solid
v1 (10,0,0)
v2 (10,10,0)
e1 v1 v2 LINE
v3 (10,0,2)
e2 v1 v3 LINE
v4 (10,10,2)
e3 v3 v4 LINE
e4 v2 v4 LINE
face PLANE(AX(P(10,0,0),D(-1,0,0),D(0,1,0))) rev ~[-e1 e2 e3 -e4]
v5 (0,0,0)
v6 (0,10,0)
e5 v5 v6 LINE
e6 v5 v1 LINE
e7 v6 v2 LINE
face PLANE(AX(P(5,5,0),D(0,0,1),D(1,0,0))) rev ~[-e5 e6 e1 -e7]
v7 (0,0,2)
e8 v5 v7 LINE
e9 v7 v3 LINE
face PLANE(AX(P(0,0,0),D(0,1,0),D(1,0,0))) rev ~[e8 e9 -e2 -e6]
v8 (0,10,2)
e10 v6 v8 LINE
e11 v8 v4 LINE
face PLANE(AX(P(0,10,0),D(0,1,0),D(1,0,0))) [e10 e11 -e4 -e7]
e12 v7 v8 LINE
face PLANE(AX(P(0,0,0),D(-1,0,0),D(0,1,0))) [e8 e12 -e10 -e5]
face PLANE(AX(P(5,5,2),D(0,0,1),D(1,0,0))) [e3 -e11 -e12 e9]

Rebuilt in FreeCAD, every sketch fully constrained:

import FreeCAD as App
import Part
import Sketcher

V = App.Vector
Q = App.Units.Quantity

doc = App.newDocument("Part")
body = doc.addObject("PartDesign::Body", "Body")

sketch1 = body.newObject("Sketcher::SketchObject", "Sketch")
sketch1.AttachmentSupport = (doc.getObject("XY_Plane"), [""])
sketch1.MapMode = "FlatFace"
sketch1.addGeometry(Part.LineSegment(V(0, 10, 0), V(0, 0, 0)), False)
sketch1.addGeometry(Part.LineSegment(V(0, 0, 0), V(10, 0, 0)), False)
sketch1.addGeometry(Part.LineSegment(V(10, 0, 0), V(10, 10, 0)), False)
sketch1.addGeometry(Part.LineSegment(V(10, 10, 0), V(0, 10, 0)), False)
sketch1.addConstraint(Sketcher.Constraint("Coincident", 0, 2, 1, 1))
sketch1.addConstraint(Sketcher.Constraint("Coincident", 1, 2, 2, 1))
sketch1.addConstraint(Sketcher.Constraint("Coincident", 2, 2, 3, 1))
sketch1.addConstraint(Sketcher.Constraint("Coincident", 3, 2, 0, 1))
sketch1.addConstraint(Sketcher.Constraint("Vertical", 0))
sketch1.addConstraint(Sketcher.Constraint("Horizontal", 1))
sketch1.addConstraint(Sketcher.Constraint("Vertical", 2))
sketch1.addConstraint(Sketcher.Constraint("Horizontal", 3))
sketch1.addConstraint(Sketcher.Constraint("Coincident", 0, 2, -1, 1))
sketch1.addConstraint(Sketcher.Constraint("Equal", 3, 0))
sketch1.addConstraint(Sketcher.Constraint("DistanceX", 1, 1, 1, 2, Q("10 mm")))
pad1 = body.newObject("PartDesign::Pad", "Pad")
pad1.Profile = sketch1
pad1.Length = 2

doc.recompute()
